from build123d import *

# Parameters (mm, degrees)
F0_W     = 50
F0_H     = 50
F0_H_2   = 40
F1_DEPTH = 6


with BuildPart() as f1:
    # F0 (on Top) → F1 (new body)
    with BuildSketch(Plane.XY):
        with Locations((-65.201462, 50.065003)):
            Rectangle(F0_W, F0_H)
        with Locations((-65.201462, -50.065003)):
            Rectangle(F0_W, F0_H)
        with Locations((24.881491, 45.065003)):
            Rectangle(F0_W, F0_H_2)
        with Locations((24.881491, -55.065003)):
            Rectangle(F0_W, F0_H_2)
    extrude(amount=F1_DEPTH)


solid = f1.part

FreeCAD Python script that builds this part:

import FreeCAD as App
import Part
import Sketcher

V = App.Vector

doc = App.newDocument("Part")
body = doc.addObject("PartDesign::Body", "Body")
body.AllowCompound = True

# Sketch on XY plane
sketch1 = doc.addObject("Sketcher::SketchObject", "Sketch")
body.addObject(sketch1)
sketch1.AttachmentSupport = (doc.XY_Plane, [""])
sketch1.MapMode = "FlatFace"
sketch1.addGeometry([
    Part.LineSegment(V(-90, 75, 0), V(-90, 25, 0)),  # 0
    Part.LineSegment(V(-90, 25, 0), V(-40, 25, 0)),  # 1
    Part.LineSegment(V(-40, 25, 0), V(-40, 75, 0)),  # 2
    Part.LineSegment(V(-40, 75, 0), V(-90, 75, 0)),  # 3
    Part.LineSegment(V(-90, -25, 0), V(-90, -75, 0)),  # 4
    Part.LineSegment(V(-90, -75, 0), V(-40, -75, 0)),  # 5
    Part.LineSegment(V(-40, -75, 0), V(-40, -25, 0)),  # 6
    Part.LineSegment(V(-40, -25, 0), V(-90, -25, 0)),  # 7
    Part.LineSegment(V(0, 65, 0), V(0, 25, 0)),  # 8
    Part.LineSegment(V(0, 25, 0), V(50, 25, 0)),  # 9
    Part.LineSegment(V(50, 25, 0), V(50, 65, 0)),  # 10
    Part.LineSegment(V(50, 65, 0), V(0, 65, 0)),  # 11
    Part.LineSegment(V(0, -35, 0), V(0, -75, 0)),  # 12
    Part.LineSegment(V(0, -75, 0), V(50, -75, 0)),  # 13
    Part.LineSegment(V(50, -75, 0), V(50, -35, 0)),  # 14
    Part.LineSegment(V(50, -35, 0), V(0, -35, 0)),  # 15
], False)
sketch1.addConstraint([
    Sketcher.Constraint("Coincident", 0, 2, 1, 1),
    Sketcher.Constraint("Coincident", 1, 2, 2, 1),
    Sketcher.Constraint("Coincident", 2, 2, 3, 1),
    Sketcher.Constraint("Coincident", 3, 2, 0, 1),
    Sketcher.Constraint("Coincident", 4, 2, 5, 1),
    Sketcher.Constraint("Coincident", 5, 2, 6, 1),
    Sketcher.Constraint("Coincident", 6, 2, 7, 1),
    Sketcher.Constraint("Coincident", 7, 2, 4, 1),
    Sketcher.Constraint("Coincident", 8, 2, 9, 1),
    Sketcher.Constraint("Coincident", 9, 2, 10, 1),
    Sketcher.Constraint("Coincident", 10, 2, 11, 1),
    Sketcher.Constraint("Coincident", 11, 2, 8, 1),
    Sketcher.Constraint("Coincident", 12, 2, 13, 1),
    Sketcher.Constraint("Coincident", 13, 2, 14, 1),
    Sketcher.Constraint("Coincident", 14, 2, 15, 1),
    Sketcher.Constraint("Coincident", 15, 2, 12, 1),
    Sketcher.Constraint("Vertical", 0),
    Sketcher.Constraint("Horizontal", 1),
    Sketcher.Constraint("Vertical", 2),
    Sketcher.Constraint("Horizontal", 3),
    Sketcher.Constraint("Vertical", 4),
    Sketcher.Constraint("Horizontal", 5),
    Sketcher.Constraint("Vertical", 6),
    Sketcher.Constraint("Horizontal", 7),
    Sketcher.Constraint("Vertical", 8),
    Sketcher.Constraint("Horizontal", 9),
    Sketcher.Constraint("Vertical", 10),
    Sketcher.Constraint("Horizontal", 11),
    Sketcher.Constraint("Vertical", 12),
    Sketcher.Constraint("Horizontal", 13),
    Sketcher.Constraint("Vertical", 14),
    Sketcher.Constraint("Horizontal", 15),
    Sketcher.Constraint("Symmetric", 3, 2, 4, 2, -1),
    Sketcher.Constraint("Symmetric", 1, 2, 6, 2, -1),
    Sketcher.Constraint("Horizontal", 1, 2, 8, 2),
    Sketcher.Constraint("Horizontal", 5, 2, 12, 2),
    Sketcher.Constraint("Vertical", 11, 2, 12, 2),
    Sketcher.Constraint("Vertical", 10, 2, 13, 2),
    Sketcher.Constraint("Equal", 7, 9),
    Sketcher.Constraint("Equal", 15, 0),
    Sketcher.Constraint("Equal", 10, 12),
    Sketcher.Constraint("DistanceX", 1, 1, 1, 2, 50.0),
    Sketcher.Constraint("DistanceY", 8, 2, 8, 1, 40.0),
    Sketcher.Constraint("DistanceX", 8, 2, -1, 1, 0.118509),
    Sketcher.Constraint("DistanceX", 0, 2, -1, 1, 90.201462),
    Sketcher.Constraint("DistanceY", -1, 1, 0, 2, 25.065003),
])
pad1 = doc.addObject("PartDesign::Pad", "Pad")
body.addObject(pad1)
pad1.Profile = sketch1
pad1.Length = 6

doc.recompute()
